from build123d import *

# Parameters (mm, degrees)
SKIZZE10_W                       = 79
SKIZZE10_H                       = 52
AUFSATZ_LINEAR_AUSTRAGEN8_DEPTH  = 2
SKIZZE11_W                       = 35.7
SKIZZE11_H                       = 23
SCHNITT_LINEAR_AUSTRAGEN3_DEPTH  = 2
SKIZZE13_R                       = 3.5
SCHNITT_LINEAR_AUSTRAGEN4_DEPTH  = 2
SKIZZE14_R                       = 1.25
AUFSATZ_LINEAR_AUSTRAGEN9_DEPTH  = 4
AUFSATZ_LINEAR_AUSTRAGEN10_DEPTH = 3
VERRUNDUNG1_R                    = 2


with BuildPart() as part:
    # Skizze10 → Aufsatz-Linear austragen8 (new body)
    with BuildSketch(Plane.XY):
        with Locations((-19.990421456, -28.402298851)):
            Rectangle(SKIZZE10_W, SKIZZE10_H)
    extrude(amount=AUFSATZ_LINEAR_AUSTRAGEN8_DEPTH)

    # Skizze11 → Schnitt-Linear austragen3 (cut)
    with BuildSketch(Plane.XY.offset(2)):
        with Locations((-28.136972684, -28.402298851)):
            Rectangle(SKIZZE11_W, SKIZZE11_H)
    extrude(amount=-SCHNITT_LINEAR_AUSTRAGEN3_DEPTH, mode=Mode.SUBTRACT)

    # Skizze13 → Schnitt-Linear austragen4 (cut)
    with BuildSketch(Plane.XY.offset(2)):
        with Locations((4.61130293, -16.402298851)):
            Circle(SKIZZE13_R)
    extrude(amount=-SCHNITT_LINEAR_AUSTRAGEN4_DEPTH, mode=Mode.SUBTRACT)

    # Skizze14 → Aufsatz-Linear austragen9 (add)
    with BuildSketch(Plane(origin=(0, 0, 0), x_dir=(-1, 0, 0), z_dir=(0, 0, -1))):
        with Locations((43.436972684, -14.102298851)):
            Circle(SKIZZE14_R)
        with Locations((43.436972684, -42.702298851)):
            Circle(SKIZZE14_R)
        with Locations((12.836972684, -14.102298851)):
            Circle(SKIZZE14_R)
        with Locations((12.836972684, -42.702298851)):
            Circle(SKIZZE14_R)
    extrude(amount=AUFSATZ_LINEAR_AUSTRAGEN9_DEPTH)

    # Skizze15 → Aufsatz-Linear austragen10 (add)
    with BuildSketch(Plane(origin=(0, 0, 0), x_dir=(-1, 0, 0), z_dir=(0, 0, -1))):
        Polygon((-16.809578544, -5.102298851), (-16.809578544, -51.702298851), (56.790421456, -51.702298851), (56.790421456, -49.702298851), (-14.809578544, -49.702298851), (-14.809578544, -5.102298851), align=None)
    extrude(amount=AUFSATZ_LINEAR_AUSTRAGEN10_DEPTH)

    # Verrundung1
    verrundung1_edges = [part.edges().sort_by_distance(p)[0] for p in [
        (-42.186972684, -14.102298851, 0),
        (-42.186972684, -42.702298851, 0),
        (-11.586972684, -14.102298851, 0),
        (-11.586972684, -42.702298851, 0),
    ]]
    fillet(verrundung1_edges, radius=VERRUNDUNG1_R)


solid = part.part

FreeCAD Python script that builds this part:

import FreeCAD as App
import Part
import Sketcher
from FreeCAD import Vector
Q = App.Units.Quantity


def edges_at(feature, points):
    """Names of the edges that pass closest to the given points."""
    edges = feature.Shape.Edges
    near = lambda p: min(range(len(edges)), key=lambda i: edges[i].distToShape(Part.Vertex(*p))[0])
    return sorted({f"Edge{near(p) + 1}" for p in points})

doc = App.newDocument("Part")
body = doc.addObject("PartDesign::Body", "Body")

sketch1 = body.newObject("Sketcher::SketchObject", "Sketch")
sketch1.AttachmentSupport = (doc.getObject("XY_Plane"), [""])
sketch1.MapMode = "FlatFace"
sketch1.addGeometry(Part.LineSegment(Vector(-59, -2, 0), Vector(-59, -54, 0)), False)
sketch1.addGeometry(Part.LineSegment(Vector(-59, -54, 0), Vector(20, -54, 0)), False)
sketch1.addGeometry(Part.LineSegment(Vector(20, -54, 0), Vector(20, -2, 0)), False)
sketch1.addGeometry(Part.LineSegment(Vector(20, -2, 0), Vector(-59, -2, 0)), False)
sketch1.addConstraint(Sketcher.Constraint("Coincident", 0, 2, 1, 1))
sketch1.addConstraint(Sketcher.Constraint("Coincident", 1, 2, 2, 1))
sketch1.addConstraint(Sketcher.Constraint("Coincident", 2, 2, 3, 1))
sketch1.addConstraint(Sketcher.Constraint("Coincident", 3, 2, 0, 1))
sketch1.addConstraint(Sketcher.Constraint("Vertical", 0))
sketch1.addConstraint(Sketcher.Constraint("Horizontal", 1))
sketch1.addConstraint(Sketcher.Constraint("Vertical", 2))
sketch1.addConstraint(Sketcher.Constraint("Horizontal", 3))
sketch1.addConstraint(Sketcher.Constraint("DistanceX", 1, 1, 1, 2, Q("79 mm")))
sketch1.addConstraint(Sketcher.Constraint("DistanceY", 0, 2, 0, 1, Q("52 mm")))
sketch1.addConstraint(Sketcher.Constraint("DistanceY", 0, 2, -1, 1, Q("54.402299 mm")))
sketch1.addConstraint(Sketcher.Constraint("DistanceX", 0, 2, -1, 1, Q("59.490421 mm")))
pad1 = body.newObject("PartDesign::Pad", "Pad")
pad1.Profile = sketch1
pad1.Length = 2

sketch2 = body.newObject("Sketcher::SketchObject", "Sketch001")
sketch2.AttachmentSupport = (doc.getObject("XY_Plane"), [""])
sketch2.MapMode = "FlatFace"
sketch2.AttachmentOffset = App.Placement(Vector(0, 0, 2), App.Rotation())
sketch2.addGeometry(Part.LineSegment(Vector(-46, -17, 0), Vector(-46, -40, 0)), False)
sketch2.addGeometry(Part.LineSegment(Vector(-46, -40, 0), Vector(-10, -40, 0)), False)
sketch2.addGeometry(Part.LineSegment(Vector(-10, -40, 0), Vector(-10, -17, 0)), False)
sketch2.addGeometry(Part.LineSegment(Vector(-10, -17, 0), Vector(-46, -17, 0)), False)
sketch2.addConstraint(Sketcher.Constraint("Coincident", 0, 2, 1, 1))
sketch2.addConstraint(Sketcher.Constraint("Coincident", 1, 2, 2, 1))
sketch2.addConstraint(Sketcher.Constraint("Coincident", 2, 2, 3, 1))
sketch2.addConstraint(Sketcher.Constraint("Coincident", 3, 2, 0, 1))
sketch2.addConstraint(Sketcher.Constraint("Vertical", 0))
sketch2.addConstraint(Sketcher.Constraint("Horizontal", 1))
sketch2.addConstraint(Sketcher.Constraint("Vertical", 2))
sketch2.addConstraint(Sketcher.Constraint("Horizontal", 3))
sketch2.addConstraint(Sketcher.Constraint("DistanceY", 0, 2, 0, 1, Q("23 mm")))
sketch2.addConstraint(Sketcher.Constraint("DistanceX", 1, 1, 1, 2, Q("35.7 mm")))
sketch2.addConstraint(Sketcher.Constraint("DistanceY", 0, 2, -1, 1, Q("39.902299 mm")))
sketch2.addConstraint(Sketcher.Constraint("DistanceX", 0, 2, -1, 1, Q("45.986973 mm")))
pocket1 = body.newObject("PartDesign::Pocket", "Pocket")
pocket1.Profile = sketch2
pocket1.Length = 2

sketch3 = body.newObject("Sketcher::SketchObject", "Sketch002")
sketch3.AttachmentSupport = (doc.getObject("XY_Plane"), [""])
sketch3.MapMode = "FlatFace"
sketch3.AttachmentOffset = App.Placement(Vector(0, 0, 2), App.Rotation())
sketch3.addGeometry(Part.Circle(Vector(4.6, -16.4, 0), Vector(0, 0, 1), 3.5), False)
sketch3.addConstraint(Sketcher.Constraint("Diameter", 0, Q("7 mm")))
sketch3.addConstraint(Sketcher.Constraint("DistanceY", 0, 3, -1, 1, Q("16.402299 mm")))
sketch3.addConstraint(Sketcher.Constraint("DistanceX", -1, 1, 0, 3, Q("4.611303 mm")))
pocket2 = body.newObject("PartDesign::Pocket", "Pocket001")
pocket2.Profile = sketch3
pocket2.Length = 2

sketch4 = body.newObject("Sketcher::SketchObject", "Sketch003")
sketch4.AttachmentSupport = (doc.getObject("XY_Plane"), [""])
sketch4.MapMode = "FlatFace"
sketch4.addGeometry(Part.Circle(Vector(-43.4, -14.1, 0), Vector(0, 0, 1), 1.2), False)
sketch4.addGeometry(Part.Circle(Vector(-43.4, -42.7, 0), Vector(0, 0, 1), 1.2), False)
sketch4.addGeometry(Part.Circle(Vector(-12.8, -14.1, 0), Vector(0, 0, 1), 1.2), False)
sketch4.addGeometry(Part.Circle(Vector(-12.8, -42.7, 0), Vector(0, 0, 1), 1.2), False)
sketch4.addConstraint(Sketcher.Constraint("Equal", 0, 1))
sketch4.addConstraint(Sketcher.Constraint("Equal", 1, 2))
sketch4.addConstraint(Sketcher.Constraint("Equal", 2, 3))
sketch4.addConstraint(Sketcher.Constraint("Horizontal", 0, 3, 2, 3))
sketch4.addConstraint(Sketcher.Constraint("Horizontal", 1, 3, 3, 3))
sketch4.addConstraint(Sketcher.Constraint("Vertical", 0, 3, 1, 3))
sketch4.addConstraint(Sketcher.Constraint("Vertical", 2, 3, 3, 3))
sketch4.addConstraint(Sketcher.Constraint("Diameter", 0, Q("2.5 mm")))
sketch4.addConstraint(Sketcher.Constraint("DistanceY", 1, 3, 0, 3, Q("28.6 mm")))
sketch4.addConstraint(Sketcher.Constraint("DistanceX", 0, 3, 2, 3, Q("30.6 mm")))
sketch4.addConstraint(Sketcher.Constraint("DistanceY", 0, 3, -1, 1, Q("14.102299 mm")))
sketch4.addConstraint(Sketcher.Constraint("DistanceX", 0, 3, -1, 1, Q("43.436973 mm")))
pad2 = body.newObject("PartDesign::Pad", "Pad001")
pad2.Profile = sketch4
pad2.Length = 4
pad2.Reversed = True

sketch5 = body.newObject("Sketcher::SketchObject", "Sketch004")
sketch5.AttachmentSupport = (doc.getObject("XY_Plane"), [""])
sketch5.MapMode = "FlatFace"
sketch5.addGeometry(Part.LineSegment(Vector(16.8, -5.1, 0), Vector(16.8, -51.7, 0)), False)
sketch5.addGeometry(Part.LineSegment(Vector(16.8, -51.7, 0), Vector(-56.8, -51.7, 0)), False)
sketch5.addGeometry(Part.LineSegment(Vector(-56.8, -51.7, 0), Vector(-56.8, -49.7, 0)), False)
sketch5.addGeometry(Part.LineSegment(Vector(-56.8, -49.7, 0), Vector(14.8, -49.7, 0)), False)
sketch5.addGeometry(Part.LineSegment(Vector(14.8, -49.7, 0), Vector(14.8, -5.1, 0)), False)
sketch5.addGeometry(Part.LineSegment(Vector(14.8, -5.1, 0), Vector(16.8, -5.1, 0)), False)
sketch5.addConstraint(Sketcher.Constraint("Coincident", 0, 2, 1, 1))
sketch5.addConstraint(Sketcher.Constraint("Coincident", 1, 2, 2, 1))
sketch5.addConstraint(Sketcher.Constraint("Coincident", 2, 2, 3, 1))
sketch5.addConstraint(Sketcher.Constraint("Coincident", 3, 2, 4, 1))
sketch5.addConstraint(Sketcher.Constraint("Coincident", 4, 2, 5, 1))
sketch5.addConstraint(Sketcher.Constraint("Coincident", 5, 2, 0, 1))
sketch5.addConstraint(Sketcher.Constraint("Vertical", 0))
sketch5.addConstraint(Sketcher.Constraint("Horizontal", 1))
sketch5.addConstraint(Sketcher.Constraint("Vertical", 2))
sketch5.addConstraint(Sketcher.Constraint("Horizontal", 3))
sketch5.addConstraint(Sketcher.Constraint("Vertical", 4))
sketch5.addConstraint(Sketcher.Constraint("Horizontal", 5))
sketch5.addConstraint(Sketcher.Constraint("Equal", 5, 2))
sketch5.addConstraint(Sketcher.Constraint("DistanceX", 5, 1, 5, 2, Q("2 mm")))
sketch5.addConstraint(Sketcher.Constraint("DistanceX", 1, 2, 1, 1, Q("73.6 mm")))
sketch5.addConstraint(Sketcher.Constraint("DistanceY", 0, 2, 0, 1, Q("46.6 mm")))
sketch5.addConstraint(Sketcher.Constraint("DistanceY", 0, 2, -1, 1, Q("51.702299 mm")))
sketch5.addConstraint(Sketcher.Constraint("DistanceX", -1, 1, 0, 2, Q("16.809579 mm")))
pad3 = body.newObject("PartDesign::Pad", "Pad002")
pad3.Profile = sketch5
pad3.Length = 3
pad3.Reversed = True
doc.recompute()

fillet = body.newObject("PartDesign::Fillet", "Fillet")
fillet.Base = (pad3, edges_at(pad3, [
    (-42.187, -14.102, 0),
    (-42.187, -42.702, 0),
    (-11.587, -14.102, 0),
    (-11.587, -42.702, 0),
]))
fillet.Radius = 2

doc.recompute()
